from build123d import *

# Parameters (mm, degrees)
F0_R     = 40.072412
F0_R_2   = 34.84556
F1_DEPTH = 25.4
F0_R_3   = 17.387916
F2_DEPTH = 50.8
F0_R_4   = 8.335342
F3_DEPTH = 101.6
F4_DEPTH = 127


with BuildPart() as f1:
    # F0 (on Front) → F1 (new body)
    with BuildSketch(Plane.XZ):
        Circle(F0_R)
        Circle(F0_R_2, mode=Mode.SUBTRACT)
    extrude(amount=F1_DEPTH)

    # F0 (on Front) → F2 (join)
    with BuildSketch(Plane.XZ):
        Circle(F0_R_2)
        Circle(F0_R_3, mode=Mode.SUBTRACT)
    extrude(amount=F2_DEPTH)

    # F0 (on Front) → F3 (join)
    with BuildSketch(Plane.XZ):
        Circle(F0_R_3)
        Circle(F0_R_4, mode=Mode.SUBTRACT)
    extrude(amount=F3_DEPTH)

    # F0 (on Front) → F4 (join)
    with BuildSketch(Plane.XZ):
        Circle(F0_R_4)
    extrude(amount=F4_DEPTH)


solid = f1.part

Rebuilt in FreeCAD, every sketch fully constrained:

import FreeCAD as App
import Part
import Sketcher

V = App.Vector
Q = App.Units.Quantity

doc = App.newDocument("Part")
params = doc.addObject("Spreadsheet::Sheet", "Params")
for row, (alias, value) in enumerate([
    ("pad1_length", "1 in"),
    ("pad2_length", "2 in"),
    ("pad3_length", "4 in"),
    ("pad4_length", "5 in"),
], start=1):
    params.set(f"A{row}", alias)
    params.set(f"B{row}", "=" + value)
    params.setAlias(f"B{row}", alias)

body = doc.addObject("PartDesign::Body", "Body")

# Sketch on XZ plane
sketch1 = doc.addObject("Sketcher::SketchObject", "Sketch")
body.addObject(sketch1)
sketch1.AttachmentSupport = (doc.XZ_Plane, [""])
sketch1.MapMode = "FlatFace"
sketch1.addGeometry([
    Part.Circle(V(0, 0, 0), V(0, 0, 1), 40.072412),
    Part.Circle(V(0, 0, 0), V(0, 0, 1), 34.84556),
], False)
sketch1.addConstraint([
    Sketcher.Constraint("Coincident", 0, 3, -1, 1),
    Sketcher.Constraint("Coincident", 1, 3, -1, 1),
    Sketcher.Constraint("Diameter", 1, Q("69.69112 mm")),
    Sketcher.Constraint("Diameter", 0, Q("80.144824 mm")),
])
pad1 = doc.addObject("PartDesign::Pad", "Pad")
body.addObject(pad1)
pad1.Profile = sketch1
pad1.setExpression("Length", "Params.pad1_length")

# Sketch on XZ plane
sketch2 = doc.addObject("Sketcher::SketchObject", "Sketch001")
body.addObject(sketch2)
sketch2.AttachmentSupport = (doc.XZ_Plane, [""])
sketch2.MapMode = "FlatFace"
sketch2.addGeometry([
    Part.Circle(V(0, 0, 0), V(0, 0, 1), 34.84556),
    Part.Circle(V(0, 0, 0), V(0, 0, 1), 17.387916),
], False)
sketch2.addConstraint([
    Sketcher.Constraint("Coincident", 0, 3, -1, 1),
    Sketcher.Constraint("Coincident", 1, 3, -1, 1),
    Sketcher.Constraint("Diameter", 0, Q("69.69112 mm")),
    Sketcher.Constraint("Diameter", 1, Q("34.775832 mm")),
])
pad2 = doc.addObject("PartDesign::Pad", "Pad001")
body.addObject(pad2)
pad2.Profile = sketch2
pad2.setExpression("Length", "Params.pad2_length")

# Sketch on XZ plane
sketch3 = doc.addObject("Sketcher::SketchObject", "Sketch002")
body.addObject(sketch3)
sketch3.AttachmentSupport = (doc.XZ_Plane, [""])
sketch3.MapMode = "FlatFace"
sketch3.addGeometry([
    Part.Circle(V(0, 0, 0), V(0, 0, 1), 17.387916),
    Part.Circle(V(0, 0, 0), V(0, 0, 1), 8.335342),
], False)
sketch3.addConstraint([
    Sketcher.Constraint("Coincident", 0, 3, -1, 1),
    Sketcher.Constraint("Coincident", 1, 3, -1, 1),
    Sketcher.Constraint("Diameter", 0, Q("34.775832 mm")),
    Sketcher.Constraint("Diameter", 1, Q("16.670684 mm")),
])
pad3 = doc.addObject("PartDesign::Pad", "Pad002")
body.addObject(pad3)
pad3.Profile = sketch3
pad3.setExpression("Length", "Params.pad3_length")

# Sketch on XZ plane
sketch4 = doc.addObject("Sketcher::SketchObject", "Sketch003")
body.addObject(sketch4)
sketch4.AttachmentSupport = (doc.XZ_Plane, [""])
sketch4.MapMode = "FlatFace"
sketch4.addGeometry(Part.Circle(V(0, 0, 0), V(0, 0, 1), 8.335342), False)
sketch4.addConstraint([
    Sketcher.Constraint("Coincident", 0, 3, -1, 1),
    Sketcher.Constraint("Diameter", 0, Q("16.670684 mm")),
])
pad4 = doc.addObject("PartDesign::Pad", "Pad003")
body.addObject(pad4)
pad4.Profile = sketch4
pad4.setExpression("Length", "Params.pad4_length")

doc.recompute()
